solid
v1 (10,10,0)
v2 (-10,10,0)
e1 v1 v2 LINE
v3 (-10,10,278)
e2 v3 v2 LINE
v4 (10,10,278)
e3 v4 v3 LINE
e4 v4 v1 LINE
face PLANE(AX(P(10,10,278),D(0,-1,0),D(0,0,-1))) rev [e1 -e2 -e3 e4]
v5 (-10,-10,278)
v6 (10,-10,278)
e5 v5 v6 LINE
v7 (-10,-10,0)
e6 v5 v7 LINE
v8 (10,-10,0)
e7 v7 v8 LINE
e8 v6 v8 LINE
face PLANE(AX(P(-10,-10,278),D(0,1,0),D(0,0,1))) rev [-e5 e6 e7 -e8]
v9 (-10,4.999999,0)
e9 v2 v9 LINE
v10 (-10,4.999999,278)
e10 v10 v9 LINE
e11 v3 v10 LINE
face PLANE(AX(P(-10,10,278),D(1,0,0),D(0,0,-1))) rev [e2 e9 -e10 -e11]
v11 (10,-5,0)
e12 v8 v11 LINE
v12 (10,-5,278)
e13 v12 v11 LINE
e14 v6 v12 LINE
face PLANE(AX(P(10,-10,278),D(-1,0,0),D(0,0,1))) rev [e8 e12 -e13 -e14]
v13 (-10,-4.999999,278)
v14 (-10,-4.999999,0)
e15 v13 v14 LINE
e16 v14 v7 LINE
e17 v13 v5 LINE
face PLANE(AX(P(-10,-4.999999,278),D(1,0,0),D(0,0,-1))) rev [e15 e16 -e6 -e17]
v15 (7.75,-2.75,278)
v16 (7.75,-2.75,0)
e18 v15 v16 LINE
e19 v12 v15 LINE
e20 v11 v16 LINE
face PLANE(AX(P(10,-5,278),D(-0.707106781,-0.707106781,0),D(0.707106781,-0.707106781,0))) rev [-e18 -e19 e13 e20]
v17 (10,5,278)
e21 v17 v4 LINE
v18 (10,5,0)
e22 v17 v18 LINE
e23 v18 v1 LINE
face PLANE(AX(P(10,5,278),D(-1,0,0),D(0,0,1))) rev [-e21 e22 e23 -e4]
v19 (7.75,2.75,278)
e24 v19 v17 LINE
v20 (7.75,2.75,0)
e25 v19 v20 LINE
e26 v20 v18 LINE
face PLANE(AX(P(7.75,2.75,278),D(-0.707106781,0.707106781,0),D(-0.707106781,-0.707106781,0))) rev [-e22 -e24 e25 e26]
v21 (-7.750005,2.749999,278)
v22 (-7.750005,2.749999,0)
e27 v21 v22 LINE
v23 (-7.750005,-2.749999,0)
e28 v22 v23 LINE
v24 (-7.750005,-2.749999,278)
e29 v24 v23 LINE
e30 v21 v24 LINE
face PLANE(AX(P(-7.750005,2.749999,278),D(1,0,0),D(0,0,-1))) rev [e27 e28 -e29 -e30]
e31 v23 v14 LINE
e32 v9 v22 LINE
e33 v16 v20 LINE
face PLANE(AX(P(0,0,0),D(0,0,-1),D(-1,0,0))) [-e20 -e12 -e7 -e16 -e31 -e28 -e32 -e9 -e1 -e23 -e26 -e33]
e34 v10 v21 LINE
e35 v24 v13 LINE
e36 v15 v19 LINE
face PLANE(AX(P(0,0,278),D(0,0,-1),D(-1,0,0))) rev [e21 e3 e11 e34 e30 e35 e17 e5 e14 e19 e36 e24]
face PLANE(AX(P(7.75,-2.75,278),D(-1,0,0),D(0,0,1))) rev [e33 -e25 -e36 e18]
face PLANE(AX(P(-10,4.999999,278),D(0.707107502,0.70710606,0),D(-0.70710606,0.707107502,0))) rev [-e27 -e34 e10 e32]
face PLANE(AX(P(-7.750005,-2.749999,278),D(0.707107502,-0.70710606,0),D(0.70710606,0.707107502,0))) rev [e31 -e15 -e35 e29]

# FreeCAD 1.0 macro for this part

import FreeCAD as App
import Part
import Sketcher
Q = App.Units.Quantity

doc = App.newDocument("Part")
params = doc.addObject("Spreadsheet::Sheet", "Params")
for row, (alias, value) in enumerate([
    ("sketch1_width", "20 mm"),
    ("sketch1_height", "5 mm"),
    ("sketch1_height2", "5.5 mm"),
    ("pad1_length", "278 mm"),
], start=1):
    params.set(f"A{row}", alias)
    params.set(f"B{row}", "=" + value)
    params.setAlias(f"B{row}", alias)

body = doc.addObject("PartDesign::Body", "Body")

# Sketch on XY plane
sketch1 = doc.addObject("Sketcher::SketchObject", "Sketch")
body.addObject(sketch1)
sketch1.AttachmentSupport = (doc.XY_Plane, [""])
sketch1.MapMode = "FlatFace"
sketch1.addGeometry([
    Part.LineSegment(App.Vector(7.8, -2.8, 0), App.Vector(7.8, 2.8, 0)),  # 0
    Part.LineSegment(App.Vector(7.8, 2.8, 0), App.Vector(10, 5, 0)),  # 1
    Part.LineSegment(App.Vector(10, 5, 0), App.Vector(10, 10, 0)),  # 2
    Part.LineSegment(App.Vector(10, 10, 0), App.Vector(-10, 10, 0)),  # 3
    Part.LineSegment(App.Vector(-10, 10, 0), App.Vector(-10, 5, 0)),  # 4
    Part.LineSegment(App.Vector(-10, 5, 0), App.Vector(-7.8, 2.7, 0)),  # 5
    Part.LineSegment(App.Vector(-7.8, 2.7, 0), App.Vector(-7.8, -2.7, 0)),  # 6
    Part.LineSegment(App.Vector(-7.8, -2.7, 0), App.Vector(-10, -5, 0)),  # 7
    Part.LineSegment(App.Vector(-10, -5, 0), App.Vector(-10, -10, 0)),  # 8
    Part.LineSegment(App.Vector(-10, -10, 0), App.Vector(10, -10, 0)),  # 9
    Part.LineSegment(App.Vector(10, -10, 0), App.Vector(10, -5, 0)),  # 10
    Part.LineSegment(App.Vector(10, -5, 0), App.Vector(7.8, -2.8, 0)),  # 11
], False)
sketch1.addConstraint([
    Sketcher.Constraint("Coincident", 0, 2, 1, 1),
    Sketcher.Constraint("Coincident", 1, 2, 2, 1),
    Sketcher.Constraint("Coincident", 2, 2, 3, 1),
    Sketcher.Constraint("Coincident", 3, 2, 4, 1),
    Sketcher.Constraint("Coincident", 4, 2, 5, 1),
    Sketcher.Constraint("Coincident", 5, 2, 6, 1),
    Sketcher.Constraint("Coincident", 6, 2, 7, 1),
    Sketcher.Constraint("Coincident", 7, 2, 8, 1),
    Sketcher.Constraint("Coincident", 8, 2, 9, 1),
    Sketcher.Constraint("Coincident", 9, 2, 10, 1),
    Sketcher.Constraint("Coincident", 10, 2, 11, 1),
    Sketcher.Constraint("Coincident", 11, 2, 0, 1),
    Sketcher.Constraint("Vertical", 0),
    Sketcher.Constraint("Vertical", 2),
    Sketcher.Constraint("Horizontal", 3),
    Sketcher.Constraint("Vertical", 4),
    Sketcher.Constraint("Vertical", 6),
    Sketcher.Constraint("Vertical", 8),
    Sketcher.Constraint("Horizontal", 9),
    Sketcher.Constraint("Vertical", 10),
    Sketcher.Constraint("Symmetric", 0, 2, 6, 2, -1, 1),
    Sketcher.Constraint("Symmetric", 1, 2, 7, 2, -1, 1),
    Sketcher.Constraint("Symmetric", 3, 2, 9, 2, -1, 1),
    Sketcher.Constraint("Symmetric", 1, 2, 4, 2, -2),
    Sketcher.Constraint("Perpendicular", 1, 5),
    Sketcher.Constraint("Perpendicular", 7, 11),
    Sketcher.Constraint("Horizontal", 0, 2, 5, 2),
    Sketcher.Constraint("Horizontal", 7, 2, 10, 2),
    Sketcher.Constraint("DistanceX", 3, 2, 3, 1, Q("20 mm")),
    Sketcher.Constraint("DistanceY", 2, 1, 2, 2, Q("5 mm")),
    Sketcher.Constraint("DistanceY", 0, 1, 0, 2, Q("5.5 mm")),
    Sketcher.Constraint("DistanceY", -1, 1, 1, 2, Q("5 mm")),
])
sketch1.setExpression("Constraints[28]", "Params.sketch1_width")
sketch1.setExpression("Constraints[29]", "Params.sketch1_height")
sketch1.setExpression("Constraints[30]", "Params.sketch1_height2")
pad1 = doc.addObject("PartDesign::Pad", "Pad")
body.addObject(pad1)
pad1.Profile = sketch1
pad1.setExpression("Length", "Params.pad1_length")

doc.recompute()
